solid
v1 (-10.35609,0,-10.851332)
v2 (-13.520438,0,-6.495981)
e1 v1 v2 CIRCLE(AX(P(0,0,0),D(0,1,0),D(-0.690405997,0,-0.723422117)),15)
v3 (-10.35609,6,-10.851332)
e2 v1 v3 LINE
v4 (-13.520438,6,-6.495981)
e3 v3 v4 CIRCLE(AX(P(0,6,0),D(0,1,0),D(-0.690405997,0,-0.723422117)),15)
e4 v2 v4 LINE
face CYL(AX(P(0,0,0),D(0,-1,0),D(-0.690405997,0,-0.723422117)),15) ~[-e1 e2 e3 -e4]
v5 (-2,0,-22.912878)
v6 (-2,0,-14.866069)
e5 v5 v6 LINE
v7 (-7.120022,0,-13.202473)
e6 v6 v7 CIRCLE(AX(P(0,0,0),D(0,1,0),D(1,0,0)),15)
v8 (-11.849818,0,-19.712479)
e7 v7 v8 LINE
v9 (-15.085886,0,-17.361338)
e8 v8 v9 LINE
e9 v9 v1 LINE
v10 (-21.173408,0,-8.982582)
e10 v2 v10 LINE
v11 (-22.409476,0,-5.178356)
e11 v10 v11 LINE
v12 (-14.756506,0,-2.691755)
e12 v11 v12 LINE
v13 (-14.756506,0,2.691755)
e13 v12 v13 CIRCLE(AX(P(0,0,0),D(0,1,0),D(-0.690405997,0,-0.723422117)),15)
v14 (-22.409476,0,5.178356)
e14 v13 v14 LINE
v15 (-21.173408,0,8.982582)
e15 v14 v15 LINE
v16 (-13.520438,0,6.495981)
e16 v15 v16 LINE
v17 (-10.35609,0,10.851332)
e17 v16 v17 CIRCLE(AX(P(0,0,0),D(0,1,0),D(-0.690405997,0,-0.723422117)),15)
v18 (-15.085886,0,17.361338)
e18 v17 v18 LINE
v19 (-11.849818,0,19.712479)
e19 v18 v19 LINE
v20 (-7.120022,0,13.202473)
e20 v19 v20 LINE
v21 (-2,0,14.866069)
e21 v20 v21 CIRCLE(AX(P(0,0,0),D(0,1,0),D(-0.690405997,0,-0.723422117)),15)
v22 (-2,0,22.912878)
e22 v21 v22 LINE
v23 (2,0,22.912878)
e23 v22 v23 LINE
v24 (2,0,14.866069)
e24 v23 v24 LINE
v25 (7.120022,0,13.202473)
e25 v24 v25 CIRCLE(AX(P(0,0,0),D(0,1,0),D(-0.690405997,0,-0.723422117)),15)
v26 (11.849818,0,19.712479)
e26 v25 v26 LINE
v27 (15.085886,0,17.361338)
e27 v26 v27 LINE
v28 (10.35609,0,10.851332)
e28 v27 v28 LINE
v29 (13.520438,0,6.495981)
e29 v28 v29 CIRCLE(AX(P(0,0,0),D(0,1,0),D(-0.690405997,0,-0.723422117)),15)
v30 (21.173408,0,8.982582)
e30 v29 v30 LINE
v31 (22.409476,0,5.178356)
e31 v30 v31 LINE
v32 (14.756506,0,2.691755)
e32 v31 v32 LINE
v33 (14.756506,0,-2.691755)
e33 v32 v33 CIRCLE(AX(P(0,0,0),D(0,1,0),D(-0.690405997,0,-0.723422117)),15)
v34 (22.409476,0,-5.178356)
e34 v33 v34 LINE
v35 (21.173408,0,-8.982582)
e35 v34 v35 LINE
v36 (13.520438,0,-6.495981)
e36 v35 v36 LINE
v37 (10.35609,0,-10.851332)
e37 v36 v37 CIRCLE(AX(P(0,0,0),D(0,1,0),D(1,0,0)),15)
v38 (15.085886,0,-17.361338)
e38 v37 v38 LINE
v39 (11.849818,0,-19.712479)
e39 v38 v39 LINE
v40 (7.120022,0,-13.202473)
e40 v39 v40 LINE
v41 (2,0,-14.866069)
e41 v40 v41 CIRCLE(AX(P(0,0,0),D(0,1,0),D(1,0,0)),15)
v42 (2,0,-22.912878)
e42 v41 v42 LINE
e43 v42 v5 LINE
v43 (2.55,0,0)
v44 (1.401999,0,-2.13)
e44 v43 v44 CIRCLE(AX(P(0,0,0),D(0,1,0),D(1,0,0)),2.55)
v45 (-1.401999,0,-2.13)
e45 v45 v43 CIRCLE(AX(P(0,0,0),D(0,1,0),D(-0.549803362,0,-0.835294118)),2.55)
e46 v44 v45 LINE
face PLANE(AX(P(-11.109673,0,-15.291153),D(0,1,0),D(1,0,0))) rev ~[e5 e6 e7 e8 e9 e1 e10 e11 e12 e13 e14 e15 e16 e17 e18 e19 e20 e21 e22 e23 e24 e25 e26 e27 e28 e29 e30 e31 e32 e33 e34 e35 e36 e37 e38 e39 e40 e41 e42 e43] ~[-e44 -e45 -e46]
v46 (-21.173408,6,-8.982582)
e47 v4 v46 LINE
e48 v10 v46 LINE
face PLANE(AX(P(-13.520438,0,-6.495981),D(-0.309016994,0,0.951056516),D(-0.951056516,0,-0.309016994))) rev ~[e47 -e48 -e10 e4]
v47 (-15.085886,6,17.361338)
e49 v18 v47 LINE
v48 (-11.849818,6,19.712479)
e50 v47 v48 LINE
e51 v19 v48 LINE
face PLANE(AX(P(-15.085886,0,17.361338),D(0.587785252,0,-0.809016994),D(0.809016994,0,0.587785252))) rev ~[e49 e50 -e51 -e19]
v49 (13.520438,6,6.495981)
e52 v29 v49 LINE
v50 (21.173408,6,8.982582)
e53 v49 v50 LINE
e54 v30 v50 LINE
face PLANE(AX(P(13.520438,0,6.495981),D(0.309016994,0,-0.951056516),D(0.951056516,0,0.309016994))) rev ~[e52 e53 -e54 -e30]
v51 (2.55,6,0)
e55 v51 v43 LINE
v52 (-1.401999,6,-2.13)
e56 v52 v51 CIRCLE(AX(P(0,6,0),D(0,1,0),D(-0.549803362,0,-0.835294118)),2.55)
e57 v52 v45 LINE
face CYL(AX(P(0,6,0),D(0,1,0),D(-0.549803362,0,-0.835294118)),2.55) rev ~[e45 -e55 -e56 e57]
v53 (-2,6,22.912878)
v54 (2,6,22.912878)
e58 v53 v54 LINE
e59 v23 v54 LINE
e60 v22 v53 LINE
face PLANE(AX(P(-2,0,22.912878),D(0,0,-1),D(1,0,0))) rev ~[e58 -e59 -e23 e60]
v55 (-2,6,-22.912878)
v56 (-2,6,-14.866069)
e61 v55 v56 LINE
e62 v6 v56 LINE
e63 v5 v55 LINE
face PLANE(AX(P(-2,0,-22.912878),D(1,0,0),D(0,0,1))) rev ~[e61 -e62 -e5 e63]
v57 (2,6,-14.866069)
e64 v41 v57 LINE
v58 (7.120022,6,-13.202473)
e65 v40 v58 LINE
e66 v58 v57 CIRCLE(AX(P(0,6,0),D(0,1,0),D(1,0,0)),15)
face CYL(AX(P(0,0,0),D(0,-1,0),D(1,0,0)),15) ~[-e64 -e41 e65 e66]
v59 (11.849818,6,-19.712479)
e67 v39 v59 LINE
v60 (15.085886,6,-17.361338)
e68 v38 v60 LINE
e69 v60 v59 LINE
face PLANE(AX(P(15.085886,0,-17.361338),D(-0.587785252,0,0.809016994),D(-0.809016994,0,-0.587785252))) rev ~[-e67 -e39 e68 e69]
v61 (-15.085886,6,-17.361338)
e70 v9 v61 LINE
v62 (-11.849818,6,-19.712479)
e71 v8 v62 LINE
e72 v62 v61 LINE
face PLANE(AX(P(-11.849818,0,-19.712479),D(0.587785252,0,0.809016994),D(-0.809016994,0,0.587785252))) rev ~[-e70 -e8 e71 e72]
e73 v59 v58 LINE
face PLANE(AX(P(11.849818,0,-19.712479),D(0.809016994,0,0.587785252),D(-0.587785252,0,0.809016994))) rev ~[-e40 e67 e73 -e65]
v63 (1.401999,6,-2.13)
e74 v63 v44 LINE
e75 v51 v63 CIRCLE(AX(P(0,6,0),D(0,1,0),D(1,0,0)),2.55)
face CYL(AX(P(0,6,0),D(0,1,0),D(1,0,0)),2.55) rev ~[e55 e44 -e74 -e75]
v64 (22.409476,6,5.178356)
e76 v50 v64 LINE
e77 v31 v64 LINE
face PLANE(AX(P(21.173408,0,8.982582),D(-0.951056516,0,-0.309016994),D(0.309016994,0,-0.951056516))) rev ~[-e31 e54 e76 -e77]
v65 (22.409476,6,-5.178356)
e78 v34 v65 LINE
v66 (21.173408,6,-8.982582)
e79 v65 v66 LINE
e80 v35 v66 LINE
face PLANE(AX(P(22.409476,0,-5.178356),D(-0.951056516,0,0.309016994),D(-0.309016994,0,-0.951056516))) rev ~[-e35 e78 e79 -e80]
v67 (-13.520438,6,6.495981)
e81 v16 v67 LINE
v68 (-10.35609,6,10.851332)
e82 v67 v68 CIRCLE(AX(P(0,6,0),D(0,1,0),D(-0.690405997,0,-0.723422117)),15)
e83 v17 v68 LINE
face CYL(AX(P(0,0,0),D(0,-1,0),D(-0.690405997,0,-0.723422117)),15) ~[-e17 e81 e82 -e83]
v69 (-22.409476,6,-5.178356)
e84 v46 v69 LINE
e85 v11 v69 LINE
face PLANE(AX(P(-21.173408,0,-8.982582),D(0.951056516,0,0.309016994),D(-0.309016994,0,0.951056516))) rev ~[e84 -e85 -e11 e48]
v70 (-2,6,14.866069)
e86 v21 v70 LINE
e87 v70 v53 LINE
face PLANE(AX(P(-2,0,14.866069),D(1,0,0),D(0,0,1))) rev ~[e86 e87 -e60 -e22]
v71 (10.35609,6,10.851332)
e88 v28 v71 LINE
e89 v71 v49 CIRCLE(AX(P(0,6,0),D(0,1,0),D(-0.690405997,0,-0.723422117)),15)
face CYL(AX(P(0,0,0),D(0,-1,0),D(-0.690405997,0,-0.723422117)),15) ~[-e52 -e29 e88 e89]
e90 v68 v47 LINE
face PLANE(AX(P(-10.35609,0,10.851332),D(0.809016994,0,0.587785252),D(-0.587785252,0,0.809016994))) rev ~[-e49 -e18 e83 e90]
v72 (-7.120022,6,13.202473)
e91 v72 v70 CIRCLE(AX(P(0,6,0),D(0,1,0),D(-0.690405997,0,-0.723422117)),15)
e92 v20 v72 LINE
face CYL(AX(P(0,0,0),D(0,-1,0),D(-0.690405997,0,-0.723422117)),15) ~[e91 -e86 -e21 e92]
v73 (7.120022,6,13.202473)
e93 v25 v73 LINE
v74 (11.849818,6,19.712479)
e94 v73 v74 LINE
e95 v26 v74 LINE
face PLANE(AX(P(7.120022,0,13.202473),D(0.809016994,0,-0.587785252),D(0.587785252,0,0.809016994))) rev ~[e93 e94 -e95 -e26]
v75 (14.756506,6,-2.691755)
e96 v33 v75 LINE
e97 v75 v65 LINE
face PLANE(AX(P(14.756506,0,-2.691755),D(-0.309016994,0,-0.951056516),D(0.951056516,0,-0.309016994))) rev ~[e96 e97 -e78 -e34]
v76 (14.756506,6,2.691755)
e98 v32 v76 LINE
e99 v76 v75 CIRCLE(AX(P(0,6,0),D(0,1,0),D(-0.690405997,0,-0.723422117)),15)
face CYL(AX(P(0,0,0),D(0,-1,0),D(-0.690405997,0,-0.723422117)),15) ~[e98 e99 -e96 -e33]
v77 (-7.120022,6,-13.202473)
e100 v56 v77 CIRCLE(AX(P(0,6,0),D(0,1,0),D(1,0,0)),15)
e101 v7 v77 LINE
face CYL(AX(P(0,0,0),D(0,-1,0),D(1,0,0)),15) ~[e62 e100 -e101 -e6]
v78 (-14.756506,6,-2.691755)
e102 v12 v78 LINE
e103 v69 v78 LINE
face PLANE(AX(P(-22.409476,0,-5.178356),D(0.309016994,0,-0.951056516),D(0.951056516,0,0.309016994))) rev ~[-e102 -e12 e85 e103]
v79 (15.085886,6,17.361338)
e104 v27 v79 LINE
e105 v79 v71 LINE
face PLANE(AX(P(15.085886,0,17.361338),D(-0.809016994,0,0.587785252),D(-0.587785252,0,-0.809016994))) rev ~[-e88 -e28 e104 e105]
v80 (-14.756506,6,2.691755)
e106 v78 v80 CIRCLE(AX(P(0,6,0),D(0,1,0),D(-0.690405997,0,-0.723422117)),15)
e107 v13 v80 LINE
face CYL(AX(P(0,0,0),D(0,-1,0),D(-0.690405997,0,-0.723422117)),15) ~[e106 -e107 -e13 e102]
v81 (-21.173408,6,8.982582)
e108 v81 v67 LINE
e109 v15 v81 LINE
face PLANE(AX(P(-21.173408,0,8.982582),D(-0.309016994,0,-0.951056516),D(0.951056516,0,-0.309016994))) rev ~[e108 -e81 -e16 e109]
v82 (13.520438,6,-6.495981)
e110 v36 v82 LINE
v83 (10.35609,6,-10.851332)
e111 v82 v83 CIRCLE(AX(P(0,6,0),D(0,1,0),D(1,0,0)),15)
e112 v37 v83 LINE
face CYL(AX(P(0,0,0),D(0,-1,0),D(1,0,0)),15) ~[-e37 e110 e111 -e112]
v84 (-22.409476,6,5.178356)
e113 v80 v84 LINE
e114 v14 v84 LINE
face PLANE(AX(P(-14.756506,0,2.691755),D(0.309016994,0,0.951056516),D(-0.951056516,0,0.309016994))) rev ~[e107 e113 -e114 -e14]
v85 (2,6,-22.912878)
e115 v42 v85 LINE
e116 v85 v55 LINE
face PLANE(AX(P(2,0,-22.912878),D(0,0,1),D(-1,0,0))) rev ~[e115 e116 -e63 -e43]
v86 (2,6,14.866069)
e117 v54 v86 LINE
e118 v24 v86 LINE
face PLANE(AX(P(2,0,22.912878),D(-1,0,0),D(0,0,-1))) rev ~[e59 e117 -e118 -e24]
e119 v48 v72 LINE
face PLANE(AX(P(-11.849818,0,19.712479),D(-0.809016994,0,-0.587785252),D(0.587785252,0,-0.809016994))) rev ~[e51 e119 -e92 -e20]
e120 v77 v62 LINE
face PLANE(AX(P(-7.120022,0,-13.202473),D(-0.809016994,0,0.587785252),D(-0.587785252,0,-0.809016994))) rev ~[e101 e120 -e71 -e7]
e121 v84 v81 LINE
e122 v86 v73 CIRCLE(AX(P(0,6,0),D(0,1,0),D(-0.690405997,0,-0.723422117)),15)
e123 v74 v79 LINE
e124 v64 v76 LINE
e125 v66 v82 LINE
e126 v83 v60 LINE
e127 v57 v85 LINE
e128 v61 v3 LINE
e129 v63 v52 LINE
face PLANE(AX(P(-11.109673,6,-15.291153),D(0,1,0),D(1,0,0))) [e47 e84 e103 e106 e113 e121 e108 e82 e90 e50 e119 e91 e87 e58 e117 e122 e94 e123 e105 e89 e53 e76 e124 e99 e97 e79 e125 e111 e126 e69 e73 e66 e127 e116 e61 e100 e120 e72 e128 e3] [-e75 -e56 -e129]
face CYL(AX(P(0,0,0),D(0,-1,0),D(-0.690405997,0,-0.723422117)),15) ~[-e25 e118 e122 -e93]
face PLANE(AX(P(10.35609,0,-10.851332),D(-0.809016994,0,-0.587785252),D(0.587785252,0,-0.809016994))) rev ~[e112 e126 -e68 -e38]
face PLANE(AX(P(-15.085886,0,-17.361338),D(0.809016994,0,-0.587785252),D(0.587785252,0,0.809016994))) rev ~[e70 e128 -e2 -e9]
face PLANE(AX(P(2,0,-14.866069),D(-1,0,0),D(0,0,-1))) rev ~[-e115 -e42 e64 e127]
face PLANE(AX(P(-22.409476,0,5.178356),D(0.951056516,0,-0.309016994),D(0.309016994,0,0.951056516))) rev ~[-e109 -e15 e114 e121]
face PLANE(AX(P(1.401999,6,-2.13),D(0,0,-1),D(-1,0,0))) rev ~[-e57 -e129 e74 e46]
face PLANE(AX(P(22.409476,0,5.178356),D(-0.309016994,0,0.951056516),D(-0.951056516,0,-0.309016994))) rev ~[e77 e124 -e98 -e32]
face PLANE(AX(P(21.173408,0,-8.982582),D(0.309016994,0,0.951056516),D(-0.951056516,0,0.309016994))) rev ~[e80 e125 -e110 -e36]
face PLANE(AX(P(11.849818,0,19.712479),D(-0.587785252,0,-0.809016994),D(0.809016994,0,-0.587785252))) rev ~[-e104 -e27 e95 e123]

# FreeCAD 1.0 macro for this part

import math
import FreeCAD as App
import Part
import Sketcher

V = App.Vector
Q = App.Units.Quantity

doc = App.newDocument("Part")
body = doc.addObject("PartDesign::Body", "Body")

# Sketch on XZ plane
sketch1 = body.newObject("Sketcher::SketchObject", "Sketch")
sketch1.AttachmentSupport = (doc.getObject("XZ_Plane"), [""])
sketch1.MapMode = "FlatFace"
sketch1.addGeometry([
    Part.LineSegment(V(-7.1, -13.2, 0), V(-11.8, -19.7, 0)),  # 0
    Part.LineSegment(V(-11.8, -19.7, 0), V(-15.1, -17.4, 0)),  # 1
    Part.LineSegment(V(-15.1, -17.4, 0), V(-10.4, -10.9, 0)),  # 2
    Part.ArcOfCircle(Part.Circle(V(0, 0, 0), V(0, 0, 1), 15), math.radians(-154), math.radians(-134)),  # 3
    Part.LineSegment(V(-13.5, -6.5, 0), V(-21.2, -9, 0)),  # 4
    Part.LineSegment(V(-21.2, -9, 0), V(-22.4, -5.2, 0)),  # 5
    Part.LineSegment(V(-22.4, -5.2, 0), V(-14.8, -2.7, 0)),  # 6
    Part.ArcOfCircle(Part.Circle(V(0, 0, 0), V(0, 0, 1), 15), math.radians(170), math.radians(190)),  # 7
    Part.LineSegment(V(-14.8, 2.7, 0), V(-22.4, 5.2, 0)),  # 8
    Part.LineSegment(V(-22.4, 5.2, 0), V(-21.2, 9, 0)),  # 9
    Part.LineSegment(V(-21.2, 9, 0), V(-13.5, 6.5, 0)),  # 10
    Part.ArcOfCircle(Part.Circle(V(0, 0, 0), V(0, 0, 1), 15), math.radians(134), math.radians(154)),  # 11
    Part.LineSegment(V(-10.4, 10.9, 0), V(-15.1, 17.4, 0)),  # 12
    Part.LineSegment(V(-15.1, 17.4, 0), V(-11.8, 19.7, 0)),  # 13
    Part.LineSegment(V(-11.8, 19.7, 0), V(-7.1, 13.2, 0)),  # 14
    Part.ArcOfCircle(Part.Circle(V(0, 0, 0), V(0, 0, 1), 15), math.radians(98), math.radians(118)),  # 15
    Part.LineSegment(V(-2, 14.9, 0), V(-2, 22.9, 0)),  # 16
    Part.LineSegment(V(-2, 22.9, 0), V(2, 22.9, 0)),  # 17
    Part.LineSegment(V(2, 22.9, 0), V(2, 14.9, 0)),  # 18
    Part.ArcOfCircle(Part.Circle(V(0, 0, 0), V(0, 0, 1), 15), math.radians(62), math.radians(82)),  # 19
    Part.LineSegment(V(7.1, 13.2, 0), V(11.8, 19.7, 0)),  # 20
    Part.LineSegment(V(11.8, 19.7, 0), V(15.1, 17.4, 0)),  # 21
    Part.LineSegment(V(15.1, 17.4, 0), V(10.4, 10.9, 0)),  # 22
    Part.ArcOfCircle(Part.Circle(V(0, 0, 0), V(0, 0, 1), 15), math.radians(26), math.radians(46)),  # 23
    Part.LineSegment(V(13.5, 6.5, 0), V(21.2, 9, 0)),  # 24
    Part.LineSegment(V(21.2, 9, 0), V(22.4, 5.2, 0)),  # 25
    Part.LineSegment(V(22.4, 5.2, 0), V(14.8, 2.7, 0)),  # 26
    Part.ArcOfCircle(Part.Circle(V(0, 0, 0), V(0, 0, 1), 15), math.radians(-10), math.radians(10)),  # 27
    Part.LineSegment(V(14.8, -2.7, 0), V(22.4, -5.2, 0)),  # 28
    Part.LineSegment(V(22.4, -5.2, 0), V(21.2, -9, 0)),  # 29
    Part.LineSegment(V(21.2, -9, 0), V(13.5, -6.5, 0)),  # 30
    Part.ArcOfCircle(Part.Circle(V(0, 0, 0), V(0, 0, 1), 15), math.radians(-46), math.radians(-26)),  # 31
    Part.LineSegment(V(10.4, -10.9, 0), V(15.1, -17.4, 0)),  # 32
    Part.LineSegment(V(15.1, -17.4, 0), V(11.8, -19.7, 0)),  # 33
    Part.LineSegment(V(11.8, -19.7, 0), V(7.1, -13.2, 0)),  # 34
    Part.ArcOfCircle(Part.Circle(V(0, 0, 0), V(0, 0, 1), 15), math.radians(-82), math.radians(-62)),  # 35
    Part.LineSegment(V(2, -14.9, 0), V(2, -22.9, 0)),  # 36
    Part.LineSegment(V(2, -22.9, 0), V(-2, -22.9, 0)),  # 37
    Part.LineSegment(V(-2, -22.9, 0), V(-2, -14.9, 0)),  # 38
    Part.ArcOfCircle(Part.Circle(V(0, 0, 0), V(0, 0, 1), 15), math.radians(-118), math.radians(-98)),  # 39
], False)
sketch1.addConstraint([
    Sketcher.Constraint("Coincident", 0, 2, 1, 1),
    Sketcher.Constraint("Coincident", 1, 2, 2, 1),
    Sketcher.Constraint("Coincident", 2, 2, 3, 2),
    Sketcher.Constraint("Coincident", 3, 1, 4, 1),
    Sketcher.Constraint("Coincident", 4, 2, 5, 1),
    Sketcher.Constraint("Coincident", 5, 2, 6, 1),
    Sketcher.Constraint("Coincident", 6, 2, 7, 2),
    Sketcher.Constraint("Coincident", 7, 1, 8, 1),
    Sketcher.Constraint("Coincident", 8, 2, 9, 1),
    Sketcher.Constraint("Coincident", 9, 2, 10, 1),
    Sketcher.Constraint("Coincident", 10, 2, 11, 2),
    Sketcher.Constraint("Coincident", 11, 1, 12, 1),
    Sketcher.Constraint("Coincident", 12, 2, 13, 1),
    Sketcher.Constraint("Coincident", 13, 2, 14, 1),
    Sketcher.Constraint("Coincident", 14, 2, 15, 2),
    Sketcher.Constraint("Coincident", 15, 1, 16, 1),
    Sketcher.Constraint("Coincident", 16, 2, 17, 1),
    Sketcher.Constraint("Coincident", 17, 2, 18, 1),
    Sketcher.Constraint("Coincident", 18, 2, 19, 2),
    Sketcher.Constraint("Coincident", 19, 1, 20, 1),
    Sketcher.Constraint("Coincident", 20, 2, 21, 1),
    Sketcher.Constraint("Coincident", 21, 2, 22, 1),
    Sketcher.Constraint("Coincident", 22, 2, 23, 2),
    Sketcher.Constraint("Coincident", 23, 1, 24, 1),
    Sketcher.Constraint("Coincident", 24, 2, 25, 1),
    Sketcher.Constraint("Coincident", 25, 2, 26, 1),
    Sketcher.Constraint("Coincident", 26, 2, 27, 2),
    Sketcher.Constraint("Coincident", 27, 1, 28, 1),
    Sketcher.Constraint("Coincident", 28, 2, 29, 1),
    Sketcher.Constraint("Coincident", 29, 2, 30, 1),
    Sketcher.Constraint("Coincident", 30, 2, 31, 2),
    Sketcher.Constraint("Coincident", 31, 1, 32, 1),
    Sketcher.Constraint("Coincident", 32, 2, 33, 1),
    Sketcher.Constraint("Coincident", 33, 2, 34, 1),
    Sketcher.Constraint("Coincident", 34, 2, 35, 2),
    Sketcher.Constraint("Coincident", 35, 1, 36, 1),
    Sketcher.Constraint("Coincident", 36, 2, 37, 1),
    Sketcher.Constraint("Coincident", 37, 2, 38, 1),
    Sketcher.Constraint("Coincident", 38, 2, 39, 2),
    Sketcher.Constraint("Coincident", 39, 1, 0, 1),
    Sketcher.Constraint("Vertical", 16),
    Sketcher.Constraint("Horizontal", 17),
    Sketcher.Constraint("Vertical", 18),
    Sketcher.Constraint("Vertical", 36),
    Sketcher.Constraint("Horizontal", 37),
    Sketcher.Constraint("Vertical", 38),
    Sketcher.Constraint("Coincident", 3, 3, -1, 1),
    Sketcher.Constraint("Coincident", 7, 3, -1, 1),
    Sketcher.Constraint("Coincident", 11, 3, -1, 1),
    Sketcher.Constraint("Coincident", 15, 3, -1, 1),
    Sketcher.Constraint("Coincident", 19, 3, -1, 1),
    Sketcher.Constraint("Coincident", 23, 3, -1, 1),
    Sketcher.Constraint("Coincident", 27, 3, -1, 1),
    Sketcher.Constraint("Coincident", 31, 3, -1, 1),
    Sketcher.Constraint("Coincident", 35, 3, -1, 1),
    Sketcher.Constraint("Coincident", 39, 3, -1, 1),
    Sketcher.Constraint("Equal", 3, 7),
    Sketcher.Constraint("Equal", 7, 11),
    Sketcher.Constraint("Equal", 11, 15),
    Sketcher.Constraint("Equal", 15, 19),
    Sketcher.Constraint("Equal", 19, 23),
    Sketcher.Constraint("Equal", 23, 27),
    Sketcher.Constraint("Equal", 27, 31),
    Sketcher.Constraint("Equal", 31, 35),
    Sketcher.Constraint("Equal", 35, 39),
    Sketcher.Constraint("Symmetric", 0, 2, 20, 2, -1, 1),
    Sketcher.Constraint("Symmetric", 1, 2, 21, 2, -1, 1),
    Sketcher.Constraint("Symmetric", 4, 2, 24, 2, -1, 1),
    Sketcher.Constraint("Symmetric", 5, 2, 25, 2, -1, 1),
    Sketcher.Constraint("Symmetric", 8, 2, 28, 2, -1, 1),
    Sketcher.Constraint("Symmetric", 9, 2, 29, 2, -1, 1),
    Sketcher.Constraint("Symmetric", 12, 2, 32, 2, -1, 1),
    Sketcher.Constraint("Symmetric", 13, 2, 33, 2, -1, 1),
    Sketcher.Constraint("Symmetric", 16, 2, 36, 2, -1, 1),
    Sketcher.Constraint("Symmetric", 13, 2, 20, 2, -2),
    Sketcher.Constraint("Symmetric", 12, 2, 21, 2, -2),
    Sketcher.Constraint("Symmetric", 9, 2, 24, 2, -2),
    Sketcher.Constraint("Symmetric", 8, 2, 25, 2, -2),
    Sketcher.Constraint("Perpendicular", 0, 1),
    Sketcher.Constraint("Perpendicular", 1, 2),
    Sketcher.Constraint("Perpendicular", 4, 5),
    Sketcher.Constraint("Perpendicular", 5, 6),
    Sketcher.Constraint("Perpendicular", 8, 9),
    Sketcher.Constraint("Perpendicular", 9, 10),
    Sketcher.Constraint("Perpendicular", 12, 13),
    Sketcher.Constraint("Perpendicular", 13, 14),
    Sketcher.Constraint("Parallel", 2, 20),
    Sketcher.Constraint("Perpendicular", 21, 22),
    Sketcher.Constraint("Parallel", 6, 24),
    Sketcher.Constraint("Perpendicular", 25, 26),
    Sketcher.Constraint("Parallel", 10, 28),
    Sketcher.Constraint("Perpendicular", 29, 30),
    Sketcher.Constraint("Parallel", 14, 32),
    Sketcher.Constraint("Perpendicular", 33, 34),
    Sketcher.Constraint("Horizontal", 15, 1, 18, 2),
    Sketcher.Constraint("Horizontal", 35, 1, 38, 2),
    Sketcher.Constraint("Equal", 0, 2),
    Sketcher.Constraint("Equal", 2, 4),
    Sketcher.Constraint("Equal", 1, 5),
    Sketcher.Constraint("Equal", 4, 6),
    Sketcher.Constraint("Radius", 3, 15.0),
    Sketcher.Constraint("DistanceX", 17, 1, 17, 2, 4.0),
    Sketcher.Constraint("Angle", 0, Q("-126 deg")),
    Sketcher.Constraint("Angle", 4, Q("-162 deg")),
    Sketcher.Constraint("Distance", 1, 4.0),
    Sketcher.Constraint("DistanceY", 16, 1, 16, 2, 8.04681),
    Sketcher.Constraint("DistanceY", 4, 2, 3, 1, 2.486601),
])
pad1 = body.newObject("PartDesign::Pad", "Pad")
pad1.Profile = sketch1
pad1.Length = 6
pad1.Reversed = True

# Sketch on XZ plane
sketch2 = body.newObject("Sketcher::SketchObject", "Sketch001")
sketch2.AttachmentSupport = (doc.getObject("XZ_Plane"), [""])
sketch2.MapMode = "FlatFace"
sketch2.AttachmentOffset = App.Placement(V(0, 0, -6), App.Rotation())
sketch2.addGeometry([
    Part.LineSegment(V(1.4, -2.1, 0), V(-1.4, -2.1, 0)),
    Part.ArcOfCircle(Part.Circle(V(0, 0, 0), V(0, 0, 1), 2.5), math.radians(0), math.radians(237)),
    Part.ArcOfCircle(Part.Circle(V(0, 0, 0), V(0, 0, 1), 2.5), math.radians(-57), math.radians(0)),
], False)
sketch2.addConstraint([
    Sketcher.Constraint("Coincident", 0, 2, 1, 2),
    Sketcher.Constraint("Tangent", 1, 1, 2, 2),
    Sketcher.Constraint("Coincident", 2, 1, 0, 1),
    Sketcher.Constraint("Horizontal", 0),
    Sketcher.Constraint("Coincident", 1, 3, -1, 1),
    Sketcher.Constraint("Equal", 1, 2),
    Sketcher.Constraint("PointOnObject", 1, 1, -1),
    Sketcher.Constraint("Radius", 1, 2.55),
    Sketcher.Constraint("DistanceY", 0, 2, -1, 1, 2.13),
])
pocket1 = body.newObject("PartDesign::Pocket", "Pocket")
pocket1.Profile = sketch2
pocket1.Length = 6
pocket1.Reversed = True

doc.recompute()
